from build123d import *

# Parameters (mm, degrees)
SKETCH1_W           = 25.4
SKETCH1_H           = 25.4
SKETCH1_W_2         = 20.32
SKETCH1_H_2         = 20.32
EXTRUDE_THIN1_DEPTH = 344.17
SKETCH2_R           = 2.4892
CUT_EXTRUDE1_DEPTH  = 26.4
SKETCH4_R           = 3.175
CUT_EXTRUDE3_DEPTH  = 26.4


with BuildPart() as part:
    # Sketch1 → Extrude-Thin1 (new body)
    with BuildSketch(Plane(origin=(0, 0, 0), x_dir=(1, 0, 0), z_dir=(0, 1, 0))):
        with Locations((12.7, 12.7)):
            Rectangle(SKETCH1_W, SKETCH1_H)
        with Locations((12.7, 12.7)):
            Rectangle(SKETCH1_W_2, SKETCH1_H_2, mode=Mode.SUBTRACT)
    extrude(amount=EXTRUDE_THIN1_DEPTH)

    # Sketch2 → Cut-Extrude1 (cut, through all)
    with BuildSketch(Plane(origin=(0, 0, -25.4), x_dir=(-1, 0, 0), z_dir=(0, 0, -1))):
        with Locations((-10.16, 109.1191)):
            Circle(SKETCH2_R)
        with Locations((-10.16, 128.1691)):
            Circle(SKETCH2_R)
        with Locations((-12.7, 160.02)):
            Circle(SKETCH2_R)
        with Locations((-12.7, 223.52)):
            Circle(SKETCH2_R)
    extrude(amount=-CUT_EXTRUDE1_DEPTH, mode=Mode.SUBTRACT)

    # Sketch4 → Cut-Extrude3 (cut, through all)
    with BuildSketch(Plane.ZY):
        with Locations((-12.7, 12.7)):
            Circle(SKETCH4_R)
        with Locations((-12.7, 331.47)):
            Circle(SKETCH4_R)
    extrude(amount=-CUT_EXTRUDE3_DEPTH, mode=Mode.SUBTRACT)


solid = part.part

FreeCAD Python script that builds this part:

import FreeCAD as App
import Part
import Sketcher

V = App.Vector
Q = App.Units.Quantity


def add_polygon(sketch, points):
    """Adds a closed chain of lines whose ends are joined by coincident constraints."""
    first, n = sketch.GeometryCount, len(points)
    for a, b in zip(points, points[1:] + points[:1]):
        sketch.addGeometry(Part.LineSegment(App.Vector(*a, 0), App.Vector(*b, 0)), False)
    for i in range(n):
        sketch.addConstraint(Sketcher.Constraint("Coincident", first + i, 2, first + (i + 1) % n, 1))

doc = App.newDocument("Part")
params = doc.addObject("Spreadsheet::Sheet", "Params")
for row, (alias, value) in enumerate([
    ("sketch1_width", "1 in"),
    ("sketch1_width2", "0.8 in"),
    ("pad1_length", "13.55 in"),
    ("sketch2_diameter", "0.196 in"),
    ("sketch3_diameter", "0.25 in"),
], start=1):
    params.set(f"A{row}", alias)
    params.set(f"B{row}", "=" + value)
    params.setAlias(f"B{row}", alias)

body = doc.addObject("PartDesign::Body", "Body")

# Sketch on XZ plane
sketch1 = body.newObject("Sketcher::SketchObject", "Sketch")
sketch1.AttachmentSupport = (doc.getObject("XZ_Plane"), [""])
sketch1.MapMode = "FlatFace"
add_polygon(sketch1, [(0, -25), (0, 0), (25, 0), (25, -25)])  # lines 0-3
add_polygon(sketch1, [(23, -3), (3, -3), (3, -23), (23, -23)])  # lines 4-7
sketch1.addConstraint([
    Sketcher.Constraint("Vertical", 0),
    Sketcher.Constraint("Horizontal", 1),
    Sketcher.Constraint("Vertical", 2),
    Sketcher.Constraint("Horizontal", 3),
    Sketcher.Constraint("Horizontal", 4),
    Sketcher.Constraint("Vertical", 5),
    Sketcher.Constraint("Horizontal", 6),
    Sketcher.Constraint("Vertical", 7),
    Sketcher.Constraint("Coincident", 0, 2, -1, 1),
    Sketcher.Constraint("Equal", 3, 0),
    Sketcher.Constraint("Equal", 6, 5),
    Sketcher.Constraint("DistanceX", 1, 1, 1, 2, Q("1 in")),
    Sketcher.Constraint("DistanceX", 4, 2, 4, 1, Q("0.8 in")),
    Sketcher.Constraint("DistanceX", -1, 1, 4, 2, Q("0.1 in")),
    Sketcher.Constraint("DistanceY", 4, 2, -1, 1, Q("0.1 in")),
])
sketch1.setExpression("Constraints[19]", "Params.sketch1_width")
sketch1.setExpression("Constraints[20]", "Params.sketch1_width2")
pad1 = body.newObject("PartDesign::Pad", "Pad")
pad1.Profile = sketch1
pad1.setExpression("Length", "Params.pad1_length")
pad1.Reversed = True

# Sketch on XY plane
sketch2 = body.newObject("Sketcher::SketchObject", "Sketch001")
sketch2.AttachmentSupport = (doc.getObject("XY_Plane"), [""])
sketch2.MapMode = "FlatFace"
sketch2.AttachmentOffset = App.Placement(V(0, 0, -1 * 25.4), App.Rotation())
sketch2.addGeometry([
    Part.Circle(V(10.2, 109.1, 0), V(0, 0, 1), 2.5),
    Part.Circle(V(10.2, 128.2, 0), V(0, 0, 1), 2.5),
    Part.Circle(V(12.7, 160, 0), V(0, 0, 1), 2.5),
    Part.Circle(V(12.7, 223.5, 0), V(0, 0, 1), 2.5),
], False)
sketch2.addConstraint([
    Sketcher.Constraint("Equal", 0, 1),
    Sketcher.Constraint("Equal", 1, 2),
    Sketcher.Constraint("Equal", 2, 3),
    Sketcher.Constraint("Vertical", 0, 3, 1, 3),
    Sketcher.Constraint("Vertical", 2, 3, 3, 3),
    Sketcher.Constraint("Diameter", 0, Q("0.196 in")),
    Sketcher.Constraint("DistanceX", -1, 1, 0, 3, Q("0.4 in")),
    Sketcher.Constraint("DistanceX", -1, 1, 2, 3, Q("0.5 in")),
    Sketcher.Constraint("DistanceY", -1, 1, 2, 3, Q("6.3 in")),
    Sketcher.Constraint("DistanceY", -1, 1, 3, 3, Q("8.8 in")),
    Sketcher.Constraint("DistanceY", 0, 3, 1, 3, Q("0.75 in")),
    Sketcher.Constraint("DistanceY", -1, 1, 0, 3, Q("109.1191 mm")),
])
sketch2.setExpression("Constraints[5]", "Params.sketch2_diameter")
pocket1 = body.newObject("PartDesign::Pocket", "Pocket")
pocket1.Profile = sketch2
pocket1.Type = "ThroughAll"
pocket1.Reversed = True

# Sketch on YZ plane
sketch3 = body.newObject("Sketcher::SketchObject", "Sketch002")
sketch3.AttachmentSupport = (doc.getObject("YZ_Plane"), [""])
sketch3.MapMode = "FlatFace"
sketch3.addGeometry([
    Part.Circle(V(12.7, -12.7, 0), V(0, 0, 1), 3.2),
    Part.Circle(V(331.5, -12.7, 0), V(0, 0, 1), 3.2),
], False)
sketch3.addConstraint([
    Sketcher.Constraint("Equal", 0, 1),
    Sketcher.Constraint("Horizontal", 0, 3, 1, 3),
    Sketcher.Constraint("Diameter", 0, Q("0.25 in")),
    Sketcher.Constraint("DistanceX", -1, 1, 0, 3, Q("0.5 in")),
    Sketcher.Constraint("DistanceY", 0, 3, -1, 1, Q("0.5 in")),
    Sketcher.Constraint("DistanceX", -1, 1, 1, 3, Q("13.05 in")),
])
sketch3.setExpression("Constraints[2]", "Params.sketch3_diameter")
pocket2 = body.newObject("PartDesign::Pocket", "Pocket001")
pocket2.Profile = sketch3
pocket2.Type = "ThroughAll"
pocket2.Reversed = True

doc.recompute()
